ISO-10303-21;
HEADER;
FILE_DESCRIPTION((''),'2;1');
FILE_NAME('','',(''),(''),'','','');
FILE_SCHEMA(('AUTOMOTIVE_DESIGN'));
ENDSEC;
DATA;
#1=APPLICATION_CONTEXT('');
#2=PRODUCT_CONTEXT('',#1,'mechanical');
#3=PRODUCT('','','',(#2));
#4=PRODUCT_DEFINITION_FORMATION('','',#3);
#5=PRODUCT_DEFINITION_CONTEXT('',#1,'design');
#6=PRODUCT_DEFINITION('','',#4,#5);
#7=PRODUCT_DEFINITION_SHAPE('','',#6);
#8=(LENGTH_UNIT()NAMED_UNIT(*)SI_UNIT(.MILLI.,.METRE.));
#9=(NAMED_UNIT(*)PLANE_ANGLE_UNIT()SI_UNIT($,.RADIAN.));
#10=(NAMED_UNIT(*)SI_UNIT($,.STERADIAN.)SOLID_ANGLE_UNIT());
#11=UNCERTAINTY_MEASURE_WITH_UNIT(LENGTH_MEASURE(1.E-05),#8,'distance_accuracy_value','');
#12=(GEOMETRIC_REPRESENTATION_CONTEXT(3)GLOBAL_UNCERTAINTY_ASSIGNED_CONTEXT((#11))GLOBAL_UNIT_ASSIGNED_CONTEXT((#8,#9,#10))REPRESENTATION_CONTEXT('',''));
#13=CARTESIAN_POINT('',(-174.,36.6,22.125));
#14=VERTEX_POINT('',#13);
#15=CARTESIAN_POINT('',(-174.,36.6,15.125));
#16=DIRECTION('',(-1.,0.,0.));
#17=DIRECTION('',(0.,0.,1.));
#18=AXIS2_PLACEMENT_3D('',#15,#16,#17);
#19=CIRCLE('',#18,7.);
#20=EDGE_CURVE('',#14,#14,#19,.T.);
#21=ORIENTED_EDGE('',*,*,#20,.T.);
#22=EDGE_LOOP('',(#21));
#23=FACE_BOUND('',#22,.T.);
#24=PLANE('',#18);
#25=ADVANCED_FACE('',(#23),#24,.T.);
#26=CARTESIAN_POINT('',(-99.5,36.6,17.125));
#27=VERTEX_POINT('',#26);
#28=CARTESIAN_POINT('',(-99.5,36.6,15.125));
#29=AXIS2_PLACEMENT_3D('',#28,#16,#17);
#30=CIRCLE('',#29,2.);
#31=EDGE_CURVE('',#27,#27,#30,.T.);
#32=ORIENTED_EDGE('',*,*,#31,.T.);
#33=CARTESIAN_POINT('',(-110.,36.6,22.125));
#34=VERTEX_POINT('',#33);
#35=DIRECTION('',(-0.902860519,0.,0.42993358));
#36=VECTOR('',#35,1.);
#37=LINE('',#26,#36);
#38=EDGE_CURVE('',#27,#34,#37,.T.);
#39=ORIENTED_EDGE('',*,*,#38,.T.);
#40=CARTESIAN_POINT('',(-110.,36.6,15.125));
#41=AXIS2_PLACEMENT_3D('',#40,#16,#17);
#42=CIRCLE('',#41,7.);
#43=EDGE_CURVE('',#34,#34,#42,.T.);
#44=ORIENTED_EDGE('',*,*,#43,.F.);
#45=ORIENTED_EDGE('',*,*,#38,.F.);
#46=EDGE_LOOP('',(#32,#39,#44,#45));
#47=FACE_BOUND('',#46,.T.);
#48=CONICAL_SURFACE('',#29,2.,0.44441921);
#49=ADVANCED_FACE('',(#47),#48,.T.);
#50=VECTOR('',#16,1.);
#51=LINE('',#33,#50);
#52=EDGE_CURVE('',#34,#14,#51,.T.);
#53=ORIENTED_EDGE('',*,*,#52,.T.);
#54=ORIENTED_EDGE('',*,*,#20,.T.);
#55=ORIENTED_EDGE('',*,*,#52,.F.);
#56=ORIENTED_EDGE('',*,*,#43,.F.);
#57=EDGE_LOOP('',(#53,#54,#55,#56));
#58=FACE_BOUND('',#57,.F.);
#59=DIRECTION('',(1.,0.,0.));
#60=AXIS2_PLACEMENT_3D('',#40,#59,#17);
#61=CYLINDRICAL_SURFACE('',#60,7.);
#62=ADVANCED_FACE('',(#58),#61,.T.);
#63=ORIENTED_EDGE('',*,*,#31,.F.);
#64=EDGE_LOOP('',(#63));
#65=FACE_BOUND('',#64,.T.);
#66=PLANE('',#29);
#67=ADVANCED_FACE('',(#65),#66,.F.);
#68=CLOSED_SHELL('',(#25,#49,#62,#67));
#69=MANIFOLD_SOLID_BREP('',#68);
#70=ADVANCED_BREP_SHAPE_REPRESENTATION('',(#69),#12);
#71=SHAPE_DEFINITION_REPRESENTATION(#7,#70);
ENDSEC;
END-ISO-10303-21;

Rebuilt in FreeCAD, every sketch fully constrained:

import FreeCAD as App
import Part
import Sketcher
from FreeCAD import Vector
Q = App.Units.Quantity

doc = App.newDocument("Part")
body = doc.addObject("PartDesign::Body", "Body")

# Sketch on XZ plane
sketch1 = body.newObject("Sketcher::SketchObject", "Sketch")
sketch1.AttachmentSupport = (doc.getObject("XZ_Plane"), [""])
sketch1.MapMode = "FlatFace"
sketch1.AttachmentOffset = App.Placement(Vector(0, 0, -36.6), App.Rotation())
sketch1.addGeometry([
    Part.LineSegment(Vector(-99.5, 15.1, 0), Vector(-99.5, 17.1, 0)),
    Part.LineSegment(Vector(-99.5, 17.1, 0), Vector(-110, 22.1, 0)),
    Part.LineSegment(Vector(-110, 22.1, 0), Vector(-110, 15.1, 0)),
    Part.LineSegment(Vector(-110, 15.1, 0), Vector(-99.5, 15.1, 0)),
], False)
sketch1.addGeometry(Part.LineSegment(Vector(-99.5, 15.1, 0), Vector(-110, 15.1, 0)), True)  # axis
sketch1.addConstraint([
    Sketcher.Constraint("Coincident", 0, 2, 1, 1),
    Sketcher.Constraint("Coincident", 1, 2, 2, 1),
    Sketcher.Constraint("Coincident", 2, 2, 3, 1),
    Sketcher.Constraint("Coincident", 3, 2, 0, 1),
    Sketcher.Constraint("Vertical", 0),
    Sketcher.Constraint("Vertical", 2),
    Sketcher.Constraint("Horizontal", 3),
    Sketcher.Constraint("Horizontal", 4),
    Sketcher.Constraint("Coincident", 4, 1, 3, 2),
    Sketcher.Constraint("Vertical", 1, 2, 4, 2),
    Sketcher.Constraint("DistanceY", 0, 1, 0, 2, Q("2 mm")),
    Sketcher.Constraint("DistanceY", 2, 2, 2, 1, Q("7 mm")),
    Sketcher.Constraint("DistanceX", 3, 1, 3, 2, Q("10.5 mm")),
    Sketcher.Constraint("DistanceX", 1, 2, -1, 1, Q("110 mm")),
    Sketcher.Constraint("DistanceY", -1, 1, 0, 2, Q("17.125 mm")),
])
revolution = body.newObject("PartDesign::Revolution", "Revolution")
revolution.Profile = sketch1
revolution.ReferenceAxis = (sketch1, ["Axis0"])
revolution.Angle = 360
body2 = doc.addObject("PartDesign::Body", "Body001")

# Sketch on YZ plane
sketch2 = body2.newObject("Sketcher::SketchObject", "Sketch001")
sketch2.AttachmentSupport = (doc.getObject("YZ_Plane001"), [""])
sketch2.MapMode = "FlatFace"
sketch2.AttachmentOffset = App.Placement(Vector(0, 0, -110), App.Rotation())
sketch2.addGeometry(Part.Circle(Vector(37, 15, 0), Vector(0, 0, 1), 7), False)
sketch2.addConstraint([
    Sketcher.Constraint("Diameter", 0, Q("14 mm")),
    Sketcher.Constraint("DistanceX", -1, 1, 0, 3, Q("36.6 mm")),
    Sketcher.Constraint("DistanceY", -1, 1, 0, 3, Q("15.125 mm")),
])
pad1 = body2.newObject("PartDesign::Pad", "Pad")
pad1.Profile = sketch2
pad1.Length = 64
pad1.Reversed = True
doc.recompute()

boolean = body2.newObject("PartDesign::Boolean", "Boolean")
boolean.Type = "Fuse"
boolean.addObjects([body])

doc.recompute()
